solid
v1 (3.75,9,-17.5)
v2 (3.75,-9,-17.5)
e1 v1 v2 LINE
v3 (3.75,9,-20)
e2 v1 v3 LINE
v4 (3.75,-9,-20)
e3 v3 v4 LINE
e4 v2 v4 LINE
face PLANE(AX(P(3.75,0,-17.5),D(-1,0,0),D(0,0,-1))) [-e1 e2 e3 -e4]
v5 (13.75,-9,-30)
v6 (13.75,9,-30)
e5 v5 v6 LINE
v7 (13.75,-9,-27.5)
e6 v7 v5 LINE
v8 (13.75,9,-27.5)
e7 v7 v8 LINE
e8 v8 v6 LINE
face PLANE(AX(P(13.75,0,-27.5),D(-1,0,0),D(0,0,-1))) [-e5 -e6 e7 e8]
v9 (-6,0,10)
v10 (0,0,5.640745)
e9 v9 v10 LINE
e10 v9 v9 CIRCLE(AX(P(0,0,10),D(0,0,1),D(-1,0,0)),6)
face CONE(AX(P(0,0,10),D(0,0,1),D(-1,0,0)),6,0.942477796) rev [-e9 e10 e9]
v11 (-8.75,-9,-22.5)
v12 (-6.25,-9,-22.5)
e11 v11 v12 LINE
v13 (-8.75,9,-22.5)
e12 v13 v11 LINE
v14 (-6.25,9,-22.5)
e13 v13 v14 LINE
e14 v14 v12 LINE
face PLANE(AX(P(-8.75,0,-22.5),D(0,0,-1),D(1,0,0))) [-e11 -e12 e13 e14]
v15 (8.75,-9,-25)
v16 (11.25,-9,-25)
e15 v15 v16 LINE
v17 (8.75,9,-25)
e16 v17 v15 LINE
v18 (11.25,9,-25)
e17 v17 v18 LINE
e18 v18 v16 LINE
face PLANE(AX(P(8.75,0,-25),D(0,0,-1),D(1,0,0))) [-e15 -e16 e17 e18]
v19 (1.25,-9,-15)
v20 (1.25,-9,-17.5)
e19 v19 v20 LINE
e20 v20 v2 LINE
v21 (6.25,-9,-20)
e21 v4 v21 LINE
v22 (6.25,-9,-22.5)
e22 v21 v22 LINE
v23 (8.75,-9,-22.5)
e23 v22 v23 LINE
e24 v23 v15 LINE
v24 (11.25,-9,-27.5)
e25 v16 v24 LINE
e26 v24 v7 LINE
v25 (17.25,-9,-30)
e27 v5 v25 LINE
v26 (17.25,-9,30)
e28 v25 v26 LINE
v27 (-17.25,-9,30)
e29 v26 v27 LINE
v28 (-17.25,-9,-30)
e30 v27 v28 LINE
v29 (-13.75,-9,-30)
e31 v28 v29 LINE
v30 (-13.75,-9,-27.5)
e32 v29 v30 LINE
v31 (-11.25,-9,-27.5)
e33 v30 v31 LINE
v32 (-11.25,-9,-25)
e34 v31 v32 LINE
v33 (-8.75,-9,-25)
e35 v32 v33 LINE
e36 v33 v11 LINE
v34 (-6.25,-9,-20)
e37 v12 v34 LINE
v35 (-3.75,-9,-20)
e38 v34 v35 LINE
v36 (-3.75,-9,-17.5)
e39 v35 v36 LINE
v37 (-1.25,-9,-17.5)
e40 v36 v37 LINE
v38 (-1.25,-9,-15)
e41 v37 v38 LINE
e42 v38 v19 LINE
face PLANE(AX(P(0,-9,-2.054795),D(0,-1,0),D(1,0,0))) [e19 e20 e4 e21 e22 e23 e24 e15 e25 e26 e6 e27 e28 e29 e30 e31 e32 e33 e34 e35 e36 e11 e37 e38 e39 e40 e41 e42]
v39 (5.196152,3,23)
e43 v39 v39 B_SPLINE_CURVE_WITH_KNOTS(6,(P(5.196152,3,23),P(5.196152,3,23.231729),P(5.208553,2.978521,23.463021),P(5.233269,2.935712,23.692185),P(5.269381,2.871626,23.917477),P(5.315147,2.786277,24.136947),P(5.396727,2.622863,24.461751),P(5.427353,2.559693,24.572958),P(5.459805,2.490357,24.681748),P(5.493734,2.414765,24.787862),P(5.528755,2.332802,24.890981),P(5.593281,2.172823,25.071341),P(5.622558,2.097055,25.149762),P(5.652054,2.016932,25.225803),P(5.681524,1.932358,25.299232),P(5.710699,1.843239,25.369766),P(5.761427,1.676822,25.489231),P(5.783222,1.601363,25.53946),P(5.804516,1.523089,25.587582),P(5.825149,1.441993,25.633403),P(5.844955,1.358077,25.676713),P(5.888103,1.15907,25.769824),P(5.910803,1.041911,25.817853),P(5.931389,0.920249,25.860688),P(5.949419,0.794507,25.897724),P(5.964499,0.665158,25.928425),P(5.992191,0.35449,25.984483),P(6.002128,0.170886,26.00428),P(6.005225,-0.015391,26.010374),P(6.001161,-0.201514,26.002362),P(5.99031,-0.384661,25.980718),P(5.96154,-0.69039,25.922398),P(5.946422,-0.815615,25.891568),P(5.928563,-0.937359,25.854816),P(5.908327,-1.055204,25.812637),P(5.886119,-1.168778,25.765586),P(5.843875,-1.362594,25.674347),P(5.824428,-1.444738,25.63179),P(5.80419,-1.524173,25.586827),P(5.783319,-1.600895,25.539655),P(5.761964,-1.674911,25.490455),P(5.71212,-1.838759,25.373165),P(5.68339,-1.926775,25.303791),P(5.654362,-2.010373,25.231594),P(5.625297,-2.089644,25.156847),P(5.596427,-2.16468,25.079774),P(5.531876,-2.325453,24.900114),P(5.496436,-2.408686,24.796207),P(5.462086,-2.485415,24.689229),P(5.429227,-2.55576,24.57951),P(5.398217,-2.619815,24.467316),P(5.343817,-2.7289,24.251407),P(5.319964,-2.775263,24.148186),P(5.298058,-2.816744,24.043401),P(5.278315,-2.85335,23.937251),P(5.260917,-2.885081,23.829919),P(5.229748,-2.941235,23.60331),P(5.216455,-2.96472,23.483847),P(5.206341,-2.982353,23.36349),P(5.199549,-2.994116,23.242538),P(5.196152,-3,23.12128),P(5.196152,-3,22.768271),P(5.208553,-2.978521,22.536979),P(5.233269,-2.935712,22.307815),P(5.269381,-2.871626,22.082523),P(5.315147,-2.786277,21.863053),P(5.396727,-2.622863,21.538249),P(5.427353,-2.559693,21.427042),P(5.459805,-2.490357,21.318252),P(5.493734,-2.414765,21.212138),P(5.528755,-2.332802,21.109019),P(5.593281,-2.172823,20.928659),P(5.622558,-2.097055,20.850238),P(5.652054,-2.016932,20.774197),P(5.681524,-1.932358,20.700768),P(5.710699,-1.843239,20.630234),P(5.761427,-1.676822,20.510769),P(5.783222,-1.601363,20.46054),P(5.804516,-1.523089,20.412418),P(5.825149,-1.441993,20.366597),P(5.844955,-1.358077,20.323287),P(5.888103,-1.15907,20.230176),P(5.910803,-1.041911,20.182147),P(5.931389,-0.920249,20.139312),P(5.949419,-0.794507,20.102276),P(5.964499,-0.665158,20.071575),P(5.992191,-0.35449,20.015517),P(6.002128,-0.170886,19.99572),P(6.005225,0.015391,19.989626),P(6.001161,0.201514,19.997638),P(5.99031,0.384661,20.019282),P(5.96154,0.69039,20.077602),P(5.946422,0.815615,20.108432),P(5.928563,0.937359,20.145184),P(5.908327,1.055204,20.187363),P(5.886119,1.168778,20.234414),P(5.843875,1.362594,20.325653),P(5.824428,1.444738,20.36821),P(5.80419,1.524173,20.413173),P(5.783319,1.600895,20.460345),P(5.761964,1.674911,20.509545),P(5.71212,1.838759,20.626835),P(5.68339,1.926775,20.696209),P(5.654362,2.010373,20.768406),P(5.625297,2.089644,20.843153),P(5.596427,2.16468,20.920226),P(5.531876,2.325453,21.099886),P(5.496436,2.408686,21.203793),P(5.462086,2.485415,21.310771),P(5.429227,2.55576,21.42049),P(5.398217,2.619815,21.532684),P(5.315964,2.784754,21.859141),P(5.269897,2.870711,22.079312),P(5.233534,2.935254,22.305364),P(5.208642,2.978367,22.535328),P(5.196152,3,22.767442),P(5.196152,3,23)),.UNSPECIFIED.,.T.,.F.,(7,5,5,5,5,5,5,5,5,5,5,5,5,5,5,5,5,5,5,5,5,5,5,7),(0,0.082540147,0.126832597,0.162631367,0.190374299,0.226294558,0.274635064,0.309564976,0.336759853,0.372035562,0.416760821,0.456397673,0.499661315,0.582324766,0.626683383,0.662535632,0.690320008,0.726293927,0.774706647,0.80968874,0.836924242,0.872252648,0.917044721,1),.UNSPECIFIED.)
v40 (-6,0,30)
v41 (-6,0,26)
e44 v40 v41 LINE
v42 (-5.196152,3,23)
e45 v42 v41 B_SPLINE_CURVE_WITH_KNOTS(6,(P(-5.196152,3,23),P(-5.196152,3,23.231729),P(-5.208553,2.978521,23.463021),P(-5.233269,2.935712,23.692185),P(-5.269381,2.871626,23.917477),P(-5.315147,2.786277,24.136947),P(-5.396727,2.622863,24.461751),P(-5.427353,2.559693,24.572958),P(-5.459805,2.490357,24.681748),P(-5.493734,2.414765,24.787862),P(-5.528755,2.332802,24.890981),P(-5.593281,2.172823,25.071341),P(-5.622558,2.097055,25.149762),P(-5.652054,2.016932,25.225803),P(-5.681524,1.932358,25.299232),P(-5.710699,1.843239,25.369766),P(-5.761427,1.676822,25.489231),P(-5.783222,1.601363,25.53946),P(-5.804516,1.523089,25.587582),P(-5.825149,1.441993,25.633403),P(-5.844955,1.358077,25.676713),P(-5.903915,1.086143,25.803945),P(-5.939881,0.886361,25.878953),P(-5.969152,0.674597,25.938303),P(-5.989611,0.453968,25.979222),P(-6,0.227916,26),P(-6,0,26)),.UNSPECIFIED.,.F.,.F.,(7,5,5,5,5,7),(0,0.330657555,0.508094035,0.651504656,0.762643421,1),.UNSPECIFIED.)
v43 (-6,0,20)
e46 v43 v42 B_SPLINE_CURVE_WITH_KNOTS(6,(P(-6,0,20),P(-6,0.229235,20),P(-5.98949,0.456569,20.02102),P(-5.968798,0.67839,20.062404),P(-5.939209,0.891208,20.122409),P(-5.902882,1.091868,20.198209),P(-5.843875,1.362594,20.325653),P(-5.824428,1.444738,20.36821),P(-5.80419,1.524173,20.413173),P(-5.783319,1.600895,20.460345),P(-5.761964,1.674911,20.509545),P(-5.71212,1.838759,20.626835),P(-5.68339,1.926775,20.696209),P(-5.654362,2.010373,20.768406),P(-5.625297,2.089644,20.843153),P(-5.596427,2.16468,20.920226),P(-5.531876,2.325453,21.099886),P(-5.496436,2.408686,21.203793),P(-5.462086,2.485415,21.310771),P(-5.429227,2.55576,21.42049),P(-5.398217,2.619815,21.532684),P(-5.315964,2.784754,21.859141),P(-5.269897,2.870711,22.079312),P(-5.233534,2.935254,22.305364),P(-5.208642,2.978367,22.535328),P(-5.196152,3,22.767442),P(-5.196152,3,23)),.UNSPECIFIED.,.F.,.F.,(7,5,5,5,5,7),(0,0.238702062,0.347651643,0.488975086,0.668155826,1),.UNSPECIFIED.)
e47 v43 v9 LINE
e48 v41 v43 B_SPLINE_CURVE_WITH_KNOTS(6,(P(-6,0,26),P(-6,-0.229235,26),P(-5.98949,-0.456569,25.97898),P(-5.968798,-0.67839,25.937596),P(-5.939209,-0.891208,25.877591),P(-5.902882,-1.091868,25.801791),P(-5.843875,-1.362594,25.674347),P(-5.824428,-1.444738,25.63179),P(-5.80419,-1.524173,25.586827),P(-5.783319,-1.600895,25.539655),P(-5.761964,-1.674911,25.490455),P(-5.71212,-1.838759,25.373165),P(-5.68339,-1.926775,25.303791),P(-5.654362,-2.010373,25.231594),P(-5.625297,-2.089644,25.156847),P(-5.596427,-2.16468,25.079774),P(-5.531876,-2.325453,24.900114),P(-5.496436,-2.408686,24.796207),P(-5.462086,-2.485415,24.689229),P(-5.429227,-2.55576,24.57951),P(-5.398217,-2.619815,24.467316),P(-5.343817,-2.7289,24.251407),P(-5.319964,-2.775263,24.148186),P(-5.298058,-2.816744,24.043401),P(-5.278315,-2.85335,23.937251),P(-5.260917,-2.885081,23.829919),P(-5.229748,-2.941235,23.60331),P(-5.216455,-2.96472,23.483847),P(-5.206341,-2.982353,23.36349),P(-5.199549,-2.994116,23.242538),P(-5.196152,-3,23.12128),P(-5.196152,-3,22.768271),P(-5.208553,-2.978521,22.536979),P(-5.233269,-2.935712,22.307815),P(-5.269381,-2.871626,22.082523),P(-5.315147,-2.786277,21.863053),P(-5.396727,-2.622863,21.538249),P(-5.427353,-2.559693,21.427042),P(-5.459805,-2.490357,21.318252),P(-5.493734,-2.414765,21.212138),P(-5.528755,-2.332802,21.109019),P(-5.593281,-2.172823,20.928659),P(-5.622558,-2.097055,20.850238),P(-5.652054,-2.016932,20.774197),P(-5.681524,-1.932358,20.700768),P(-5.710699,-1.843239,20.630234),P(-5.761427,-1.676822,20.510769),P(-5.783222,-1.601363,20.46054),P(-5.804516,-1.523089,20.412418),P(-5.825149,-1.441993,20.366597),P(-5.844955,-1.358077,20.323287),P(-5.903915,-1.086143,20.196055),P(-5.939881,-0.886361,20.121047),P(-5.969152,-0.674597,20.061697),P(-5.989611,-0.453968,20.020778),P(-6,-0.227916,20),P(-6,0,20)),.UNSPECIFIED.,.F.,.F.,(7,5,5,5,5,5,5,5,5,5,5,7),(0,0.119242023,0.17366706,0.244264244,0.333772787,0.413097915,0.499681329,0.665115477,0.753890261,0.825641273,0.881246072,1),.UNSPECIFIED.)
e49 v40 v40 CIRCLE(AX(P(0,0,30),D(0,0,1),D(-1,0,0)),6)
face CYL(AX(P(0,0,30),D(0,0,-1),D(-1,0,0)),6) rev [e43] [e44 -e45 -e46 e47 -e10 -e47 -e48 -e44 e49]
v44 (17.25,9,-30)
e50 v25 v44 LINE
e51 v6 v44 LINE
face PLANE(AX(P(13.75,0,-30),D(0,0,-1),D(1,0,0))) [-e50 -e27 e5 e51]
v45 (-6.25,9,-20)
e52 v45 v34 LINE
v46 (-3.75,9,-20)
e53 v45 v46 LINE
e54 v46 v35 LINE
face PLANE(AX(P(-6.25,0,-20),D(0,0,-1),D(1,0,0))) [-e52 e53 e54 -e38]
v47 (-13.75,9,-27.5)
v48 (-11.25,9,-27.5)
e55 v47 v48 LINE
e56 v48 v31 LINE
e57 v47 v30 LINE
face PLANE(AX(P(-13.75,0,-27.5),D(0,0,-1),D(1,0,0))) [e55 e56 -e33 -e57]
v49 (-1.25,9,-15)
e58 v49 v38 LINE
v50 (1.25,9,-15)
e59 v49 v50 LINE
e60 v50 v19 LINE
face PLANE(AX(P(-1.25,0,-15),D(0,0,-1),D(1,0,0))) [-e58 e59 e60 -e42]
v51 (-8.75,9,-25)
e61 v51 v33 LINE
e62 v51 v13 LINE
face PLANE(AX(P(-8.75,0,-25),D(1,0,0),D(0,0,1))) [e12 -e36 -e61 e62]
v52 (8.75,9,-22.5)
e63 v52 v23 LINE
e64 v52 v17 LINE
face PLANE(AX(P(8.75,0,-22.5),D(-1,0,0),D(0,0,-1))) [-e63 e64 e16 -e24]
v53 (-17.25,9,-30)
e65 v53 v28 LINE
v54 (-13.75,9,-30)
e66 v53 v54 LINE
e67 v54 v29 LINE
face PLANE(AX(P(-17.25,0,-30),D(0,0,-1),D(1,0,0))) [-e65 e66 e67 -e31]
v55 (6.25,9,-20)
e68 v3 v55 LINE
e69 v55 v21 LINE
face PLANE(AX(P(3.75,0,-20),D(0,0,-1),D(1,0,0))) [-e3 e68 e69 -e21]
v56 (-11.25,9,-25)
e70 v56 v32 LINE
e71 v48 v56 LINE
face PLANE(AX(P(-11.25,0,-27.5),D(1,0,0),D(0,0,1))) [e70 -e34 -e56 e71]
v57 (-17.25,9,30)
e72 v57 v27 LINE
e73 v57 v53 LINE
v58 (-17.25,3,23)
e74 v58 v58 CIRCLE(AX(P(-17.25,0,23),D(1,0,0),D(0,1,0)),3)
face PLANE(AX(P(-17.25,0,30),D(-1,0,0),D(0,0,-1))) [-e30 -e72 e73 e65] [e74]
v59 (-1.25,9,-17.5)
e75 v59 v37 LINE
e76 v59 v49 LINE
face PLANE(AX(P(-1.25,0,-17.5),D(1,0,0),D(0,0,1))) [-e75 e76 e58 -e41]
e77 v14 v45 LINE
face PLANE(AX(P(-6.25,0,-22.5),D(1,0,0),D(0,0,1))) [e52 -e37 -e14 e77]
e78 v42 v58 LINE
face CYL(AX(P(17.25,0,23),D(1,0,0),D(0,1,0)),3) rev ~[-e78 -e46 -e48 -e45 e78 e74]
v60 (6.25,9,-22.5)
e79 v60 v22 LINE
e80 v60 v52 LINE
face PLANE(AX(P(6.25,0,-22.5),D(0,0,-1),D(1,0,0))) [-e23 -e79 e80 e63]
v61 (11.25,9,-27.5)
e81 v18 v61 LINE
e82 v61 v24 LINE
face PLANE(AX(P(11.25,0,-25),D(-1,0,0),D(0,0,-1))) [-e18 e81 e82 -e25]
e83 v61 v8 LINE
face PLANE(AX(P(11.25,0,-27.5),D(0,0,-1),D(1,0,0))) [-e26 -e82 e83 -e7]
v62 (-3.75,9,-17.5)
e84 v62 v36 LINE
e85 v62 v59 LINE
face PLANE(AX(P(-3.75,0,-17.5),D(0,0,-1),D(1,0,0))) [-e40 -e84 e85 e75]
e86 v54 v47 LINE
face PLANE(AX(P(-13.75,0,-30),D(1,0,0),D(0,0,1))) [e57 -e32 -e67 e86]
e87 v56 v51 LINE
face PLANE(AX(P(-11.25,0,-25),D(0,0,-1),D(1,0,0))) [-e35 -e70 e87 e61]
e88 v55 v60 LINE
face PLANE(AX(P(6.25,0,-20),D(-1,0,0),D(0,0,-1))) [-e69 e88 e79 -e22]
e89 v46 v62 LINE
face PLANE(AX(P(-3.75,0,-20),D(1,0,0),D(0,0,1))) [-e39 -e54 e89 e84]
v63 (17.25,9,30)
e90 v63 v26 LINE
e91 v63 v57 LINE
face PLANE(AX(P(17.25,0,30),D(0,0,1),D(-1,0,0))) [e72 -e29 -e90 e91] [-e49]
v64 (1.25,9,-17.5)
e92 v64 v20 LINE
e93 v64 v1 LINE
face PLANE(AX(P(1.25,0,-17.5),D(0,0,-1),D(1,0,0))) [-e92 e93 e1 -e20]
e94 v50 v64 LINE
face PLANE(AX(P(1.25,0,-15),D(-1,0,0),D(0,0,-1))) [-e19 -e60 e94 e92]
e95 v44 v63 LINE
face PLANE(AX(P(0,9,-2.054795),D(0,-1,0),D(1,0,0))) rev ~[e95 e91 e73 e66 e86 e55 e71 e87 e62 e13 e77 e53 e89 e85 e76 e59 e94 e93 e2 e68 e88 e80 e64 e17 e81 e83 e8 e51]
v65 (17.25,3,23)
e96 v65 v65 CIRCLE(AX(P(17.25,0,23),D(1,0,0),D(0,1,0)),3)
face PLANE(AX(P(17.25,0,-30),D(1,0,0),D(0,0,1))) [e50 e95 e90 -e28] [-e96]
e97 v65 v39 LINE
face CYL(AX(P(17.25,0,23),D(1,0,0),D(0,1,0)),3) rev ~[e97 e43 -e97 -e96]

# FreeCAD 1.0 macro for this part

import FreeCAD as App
import Part
import Sketcher
from FreeCAD import Vector
Q = App.Units.Quantity

doc = App.newDocument("Part")
body = doc.addObject("PartDesign::Body", "Body")

sketch1 = doc.addObject("Sketcher::SketchObject", "Sketch")
body.addObject(sketch1)
sketch1.AttachmentSupport = (doc.XZ_Plane, [""])
sketch1.MapMode = "FlatFace"
sketch1.addGeometry(Part.LineSegment(Vector(17.25, -30, 0), Vector(17.25, 30, 0)), False)
sketch1.addGeometry(Part.LineSegment(Vector(17.25, 30, 0), Vector(-17.25, 30, 0)), False)
sketch1.addGeometry(Part.LineSegment(Vector(-17.25, 30, 0), Vector(-17.25, -30, 0)), False)
sketch1.addGeometry(Part.LineSegment(Vector(-17.25, -30, 0), Vector(-13.75, -30, 0)), False)
sketch1.addGeometry(Part.LineSegment(Vector(-13.75, -30, 0), Vector(-13.75, -27.5, 0)), False)
sketch1.addGeometry(Part.LineSegment(Vector(-13.75, -27.5, 0), Vector(-11.25, -27.5, 0)), False)
sketch1.addGeometry(Part.LineSegment(Vector(-11.25, -27.5, 0), Vector(-11.25, -25, 0)), False)
sketch1.addGeometry(Part.LineSegment(Vector(-11.25, -25, 0), Vector(-8.75, -25, 0)), False)
sketch1.addGeometry(Part.LineSegment(Vector(-8.75, -25, 0), Vector(-8.75, -22.5, 0)), False)
sketch1.addGeometry(Part.LineSegment(Vector(-8.75, -22.5, 0), Vector(-6.25, -22.5, 0)), False)
sketch1.addGeometry(Part.LineSegment(Vector(-6.25, -22.5, 0), Vector(-6.25, -20, 0)), False)
sketch1.addGeometry(Part.LineSegment(Vector(-6.25, -20, 0), Vector(-3.75, -20, 0)), False)
sketch1.addGeometry(Part.LineSegment(Vector(-3.75, -20, 0), Vector(-3.75, -17.5, 0)), False)
sketch1.addGeometry(Part.LineSegment(Vector(-3.75, -17.5, 0), Vector(-1.25, -17.5, 0)), False)
sketch1.addGeometry(Part.LineSegment(Vector(-1.25, -17.5, 0), Vector(-1.25, -15, 0)), False)
sketch1.addGeometry(Part.LineSegment(Vector(-1.25, -15, 0), Vector(1.25, -15, 0)), False)
sketch1.addGeometry(Part.LineSegment(Vector(1.25, -15, 0), Vector(1.25, -17.5, 0)), False)
sketch1.addGeometry(Part.LineSegment(Vector(1.25, -17.5, 0), Vector(3.75, -17.5, 0)), False)
sketch1.addGeometry(Part.LineSegment(Vector(3.75, -17.5, 0), Vector(3.75, -20, 0)), False)
sketch1.addGeometry(Part.LineSegment(Vector(3.75, -20, 0), Vector(6.25, -20, 0)), False)
sketch1.addGeometry(Part.LineSegment(Vector(6.25, -20, 0), Vector(6.25, -22.5, 0)), False)
sketch1.addGeometry(Part.LineSegment(Vector(6.25, -22.5, 0), Vector(8.75, -22.5, 0)), False)
sketch1.addGeometry(Part.LineSegment(Vector(8.75, -22.5, 0), Vector(8.75, -25, 0)), False)
sketch1.addGeometry(Part.LineSegment(Vector(8.75, -25, 0), Vector(11.25, -25, 0)), False)
sketch1.addGeometry(Part.LineSegment(Vector(11.25, -25, 0), Vector(11.25, -27.5, 0)), False)
sketch1.addGeometry(Part.LineSegment(Vector(11.25, -27.5, 0), Vector(13.75, -27.5, 0)), False)
sketch1.addGeometry(Part.LineSegment(Vector(13.75, -27.5, 0), Vector(13.75, -30, 0)), False)
sketch1.addGeometry(Part.LineSegment(Vector(13.75, -30, 0), Vector(17.25, -30, 0)), False)
sketch1.addConstraint(Sketcher.Constraint("Coincident", 0, 2, 1, 1))
sketch1.addConstraint(Sketcher.Constraint("Coincident", 1, 2, 2, 1))
sketch1.addConstraint(Sketcher.Constraint("Coincident", 2, 2, 3, 1))
sketch1.addConstraint(Sketcher.Constraint("Coincident", 3, 2, 4, 1))
sketch1.addConstraint(Sketcher.Constraint("Coincident", 4, 2, 5, 1))
sketch1.addConstraint(Sketcher.Constraint("Coincident", 5, 2, 6, 1))
sketch1.addConstraint(Sketcher.Constraint("Coincident", 6, 2, 7, 1))
sketch1.addConstraint(Sketcher.Constraint("Coincident", 7, 2, 8, 1))
sketch1.addConstraint(Sketcher.Constraint("Coincident", 8, 2, 9, 1))
sketch1.addConstraint(Sketcher.Constraint("Coincident", 9, 2, 10, 1))
sketch1.addConstraint(Sketcher.Constraint("Coincident", 10, 2, 11, 1))
sketch1.addConstraint(Sketcher.Constraint("Coincident", 11, 2, 12, 1))
sketch1.addConstraint(Sketcher.Constraint("Coincident", 12, 2, 13, 1))
sketch1.addConstraint(Sketcher.Constraint("Coincident", 13, 2, 14, 1))
sketch1.addConstraint(Sketcher.Constraint("Coincident", 14, 2, 15, 1))
sketch1.addConstraint(Sketcher.Constraint("Coincident", 15, 2, 16, 1))
sketch1.addConstraint(Sketcher.Constraint("Coincident", 16, 2, 17, 1))
sketch1.addConstraint(Sketcher.Constraint("Coincident", 17, 2, 18, 1))
sketch1.addConstraint(Sketcher.Constraint("Coincident", 18, 2, 19, 1))
sketch1.addConstraint(Sketcher.Constraint("Coincident", 19, 2, 20, 1))
sketch1.addConstraint(Sketcher.Constraint("Coincident", 20, 2, 21, 1))
sketch1.addConstraint(Sketcher.Constraint("Coincident", 21, 2, 22, 1))
sketch1.addConstraint(Sketcher.Constraint("Coincident", 22, 2, 23, 1))
sketch1.addConstraint(Sketcher.Constraint("Coincident", 23, 2, 24, 1))
sketch1.addConstraint(Sketcher.Constraint("Coincident", 24, 2, 25, 1))
sketch1.addConstraint(Sketcher.Constraint("Coincident", 25, 2, 26, 1))
sketch1.addConstraint(Sketcher.Constraint("Coincident", 26, 2, 27, 1))
sketch1.addConstraint(Sketcher.Constraint("Coincident", 27, 2, 0, 1))
sketch1.addConstraint(Sketcher.Constraint("Vertical", 0))
sketch1.addConstraint(Sketcher.Constraint("Horizontal", 1))
sketch1.addConstraint(Sketcher.Constraint("Vertical", 2))
sketch1.addConstraint(Sketcher.Constraint("Horizontal", 3))
sketch1.addConstraint(Sketcher.Constraint("Vertical", 4))
sketch1.addConstraint(Sketcher.Constraint("Horizontal", 5))
sketch1.addConstraint(Sketcher.Constraint("Vertical", 6))
sketch1.addConstraint(Sketcher.Constraint("Horizontal", 7))
sketch1.addConstraint(Sketcher.Constraint("Vertical", 8))
sketch1.addConstraint(Sketcher.Constraint("Horizontal", 9))
sketch1.addConstraint(Sketcher.Constraint("Vertical", 10))
sketch1.addConstraint(Sketcher.Constraint("Horizontal", 11))
sketch1.addConstraint(Sketcher.Constraint("Vertical", 12))
sketch1.addConstraint(Sketcher.Constraint("Horizontal", 13))
sketch1.addConstraint(Sketcher.Constraint("Vertical", 14))
sketch1.addConstraint(Sketcher.Constraint("Horizontal", 15))
sketch1.addConstraint(Sketcher.Constraint("Vertical", 16))
sketch1.addConstraint(Sketcher.Constraint("Horizontal", 17))
sketch1.addConstraint(Sketcher.Constraint("Vertical", 18))
sketch1.addConstraint(Sketcher.Constraint("Horizontal", 19))
sketch1.addConstraint(Sketcher.Constraint("Vertical", 20))
sketch1.addConstraint(Sketcher.Constraint("Horizontal", 21))
sketch1.addConstraint(Sketcher.Constraint("Vertical", 22))
sketch1.addConstraint(Sketcher.Constraint("Horizontal", 23))
sketch1.addConstraint(Sketcher.Constraint("Vertical", 24))
sketch1.addConstraint(Sketcher.Constraint("Horizontal", 25))
sketch1.addConstraint(Sketcher.Constraint("Vertical", 26))
sketch1.addConstraint(Sketcher.Constraint("Horizontal", 27))
sketch1.addConstraint(Sketcher.Constraint("Symmetric", 0, 2, 2, 2, -1, 1))
sketch1.addConstraint(Sketcher.Constraint("Symmetric", 13, 2, 16, 2, -2))
sketch1.addConstraint(Sketcher.Constraint("Symmetric", 11, 2, 18, 2, -2))
sketch1.addConstraint(Sketcher.Constraint("Symmetric", 9, 2, 20, 2, -2))
sketch1.addConstraint(Sketcher.Constraint("Symmetric", 7, 2, 22, 2, -2))
sketch1.addConstraint(Sketcher.Constraint("Symmetric", 5, 2, 24, 2, -2))
sketch1.addConstraint(Sketcher.Constraint("Symmetric", 3, 2, 26, 2, -2))
sketch1.addConstraint(Sketcher.Constraint("Equal", 5, 7))
sketch1.addConstraint(Sketcher.Constraint("Equal", 7, 9))
sketch1.addConstraint(Sketcher.Constraint("Equal", 9, 11))
sketch1.addConstraint(Sketcher.Constraint("Equal", 11, 13))
sketch1.addConstraint(Sketcher.Constraint("Equal", 13, 15))
sketch1.addConstraint(Sketcher.Constraint("Equal", 25, 4))
sketch1.addConstraint(Sketcher.Constraint("Equal", 4, 6))
sketch1.addConstraint(Sketcher.Constraint("Equal", 6, 8))
sketch1.addConstraint(Sketcher.Constraint("Equal", 8, 10))
sketch1.addConstraint(Sketcher.Constraint("Equal", 10, 12))
sketch1.addConstraint(Sketcher.Constraint("Equal", 12, 14))
sketch1.addConstraint(Sketcher.Constraint("DistanceY", 0, 1, 0, 2, 60.0))
sketch1.addConstraint(Sketcher.Constraint("DistanceX", 1, 2, 1, 1, 34.5))
sketch1.addConstraint(Sketcher.Constraint("DistanceX", 3, 1, 3, 2, 3.5))
pad1 = doc.addObject("PartDesign::Pad", "Pad")
body.addObject(pad1)
pad1.Profile = sketch1
pad1.Length = 18
pad1.Midplane = True

sketch2 = doc.addObject("Sketcher::SketchObject", "Sketch001")
body.addObject(sketch2)
sketch2.AttachmentSupport = (doc.YZ_Plane, [""])
sketch2.MapMode = "FlatFace"
sketch2.AttachmentOffset = App.Placement(Vector(0, 0, 17.25), App.Rotation())
sketch2.addGeometry(Part.Circle(Vector(0, 23, 0), Vector(0, 0, 1), 3), False)
sketch2.addConstraint(Sketcher.Constraint("PointOnObject", 0, 3, -2))
sketch2.addConstraint(Sketcher.Constraint("Diameter", 0, 6.0))
sketch2.addConstraint(Sketcher.Constraint("DistanceY", -1, 1, 0, 3, 23.0))
pocket1 = doc.addObject("PartDesign::Pocket", "Pocket")
body.addObject(pocket1)
pocket1.Profile = sketch2
pocket1.Length = 35

sketch3 = doc.addObject("Sketcher::SketchObject", "Sketch002")
body.addObject(sketch3)
sketch3.AttachmentSupport = (doc.XZ_Plane, [""])
sketch3.MapMode = "FlatFace"
sketch3.addGeometry(Part.LineSegment(Vector(0, 30, 0), Vector(-6, 30, 0)), False)
sketch3.addGeometry(Part.LineSegment(Vector(-6, 30, 0), Vector(-6, 10, 0)), False)
sketch3.addGeometry(Part.LineSegment(Vector(-6, 10, 0), Vector(0, 5.640745, 0)), False)
sketch3.addGeometry(Part.LineSegment(Vector(0, 5.640745, 0), Vector(0, 30, 0)), False)
sketch3.addConstraint(Sketcher.Constraint("Coincident", 0, 2, 1, 1))
sketch3.addConstraint(Sketcher.Constraint("Coincident", 1, 2, 2, 1))
sketch3.addConstraint(Sketcher.Constraint("Coincident", 2, 2, 3, 1))
sketch3.addConstraint(Sketcher.Constraint("Coincident", 3, 2, 0, 1))
sketch3.addConstraint(Sketcher.Constraint("Horizontal", 0))
sketch3.addConstraint(Sketcher.Constraint("Vertical", 1))
sketch3.addConstraint(Sketcher.Constraint("Vertical", 3))
sketch3.addConstraint(Sketcher.Constraint("PointOnObject", 2, 2, -2))
sketch3.addConstraint(Sketcher.Constraint("DistanceX", 0, 2, 0, 1, 6.0))
sketch3.addConstraint(Sketcher.Constraint("DistanceY", 1, 2, 1, 1, 20.0))
sketch3.addConstraint(Sketcher.Constraint("Angle", 2, Q("-36 deg")))
sketch3.addConstraint(Sketcher.Constraint("DistanceY", -1, 1, 0, 2, 30.0))
groove = doc.addObject("PartDesign::Groove", "Groove")
body.addObject(groove)
groove.Profile = sketch3
groove.ReferenceAxis = (sketch3, ["V_Axis"])
groove.Angle = 360

doc.recompute()
